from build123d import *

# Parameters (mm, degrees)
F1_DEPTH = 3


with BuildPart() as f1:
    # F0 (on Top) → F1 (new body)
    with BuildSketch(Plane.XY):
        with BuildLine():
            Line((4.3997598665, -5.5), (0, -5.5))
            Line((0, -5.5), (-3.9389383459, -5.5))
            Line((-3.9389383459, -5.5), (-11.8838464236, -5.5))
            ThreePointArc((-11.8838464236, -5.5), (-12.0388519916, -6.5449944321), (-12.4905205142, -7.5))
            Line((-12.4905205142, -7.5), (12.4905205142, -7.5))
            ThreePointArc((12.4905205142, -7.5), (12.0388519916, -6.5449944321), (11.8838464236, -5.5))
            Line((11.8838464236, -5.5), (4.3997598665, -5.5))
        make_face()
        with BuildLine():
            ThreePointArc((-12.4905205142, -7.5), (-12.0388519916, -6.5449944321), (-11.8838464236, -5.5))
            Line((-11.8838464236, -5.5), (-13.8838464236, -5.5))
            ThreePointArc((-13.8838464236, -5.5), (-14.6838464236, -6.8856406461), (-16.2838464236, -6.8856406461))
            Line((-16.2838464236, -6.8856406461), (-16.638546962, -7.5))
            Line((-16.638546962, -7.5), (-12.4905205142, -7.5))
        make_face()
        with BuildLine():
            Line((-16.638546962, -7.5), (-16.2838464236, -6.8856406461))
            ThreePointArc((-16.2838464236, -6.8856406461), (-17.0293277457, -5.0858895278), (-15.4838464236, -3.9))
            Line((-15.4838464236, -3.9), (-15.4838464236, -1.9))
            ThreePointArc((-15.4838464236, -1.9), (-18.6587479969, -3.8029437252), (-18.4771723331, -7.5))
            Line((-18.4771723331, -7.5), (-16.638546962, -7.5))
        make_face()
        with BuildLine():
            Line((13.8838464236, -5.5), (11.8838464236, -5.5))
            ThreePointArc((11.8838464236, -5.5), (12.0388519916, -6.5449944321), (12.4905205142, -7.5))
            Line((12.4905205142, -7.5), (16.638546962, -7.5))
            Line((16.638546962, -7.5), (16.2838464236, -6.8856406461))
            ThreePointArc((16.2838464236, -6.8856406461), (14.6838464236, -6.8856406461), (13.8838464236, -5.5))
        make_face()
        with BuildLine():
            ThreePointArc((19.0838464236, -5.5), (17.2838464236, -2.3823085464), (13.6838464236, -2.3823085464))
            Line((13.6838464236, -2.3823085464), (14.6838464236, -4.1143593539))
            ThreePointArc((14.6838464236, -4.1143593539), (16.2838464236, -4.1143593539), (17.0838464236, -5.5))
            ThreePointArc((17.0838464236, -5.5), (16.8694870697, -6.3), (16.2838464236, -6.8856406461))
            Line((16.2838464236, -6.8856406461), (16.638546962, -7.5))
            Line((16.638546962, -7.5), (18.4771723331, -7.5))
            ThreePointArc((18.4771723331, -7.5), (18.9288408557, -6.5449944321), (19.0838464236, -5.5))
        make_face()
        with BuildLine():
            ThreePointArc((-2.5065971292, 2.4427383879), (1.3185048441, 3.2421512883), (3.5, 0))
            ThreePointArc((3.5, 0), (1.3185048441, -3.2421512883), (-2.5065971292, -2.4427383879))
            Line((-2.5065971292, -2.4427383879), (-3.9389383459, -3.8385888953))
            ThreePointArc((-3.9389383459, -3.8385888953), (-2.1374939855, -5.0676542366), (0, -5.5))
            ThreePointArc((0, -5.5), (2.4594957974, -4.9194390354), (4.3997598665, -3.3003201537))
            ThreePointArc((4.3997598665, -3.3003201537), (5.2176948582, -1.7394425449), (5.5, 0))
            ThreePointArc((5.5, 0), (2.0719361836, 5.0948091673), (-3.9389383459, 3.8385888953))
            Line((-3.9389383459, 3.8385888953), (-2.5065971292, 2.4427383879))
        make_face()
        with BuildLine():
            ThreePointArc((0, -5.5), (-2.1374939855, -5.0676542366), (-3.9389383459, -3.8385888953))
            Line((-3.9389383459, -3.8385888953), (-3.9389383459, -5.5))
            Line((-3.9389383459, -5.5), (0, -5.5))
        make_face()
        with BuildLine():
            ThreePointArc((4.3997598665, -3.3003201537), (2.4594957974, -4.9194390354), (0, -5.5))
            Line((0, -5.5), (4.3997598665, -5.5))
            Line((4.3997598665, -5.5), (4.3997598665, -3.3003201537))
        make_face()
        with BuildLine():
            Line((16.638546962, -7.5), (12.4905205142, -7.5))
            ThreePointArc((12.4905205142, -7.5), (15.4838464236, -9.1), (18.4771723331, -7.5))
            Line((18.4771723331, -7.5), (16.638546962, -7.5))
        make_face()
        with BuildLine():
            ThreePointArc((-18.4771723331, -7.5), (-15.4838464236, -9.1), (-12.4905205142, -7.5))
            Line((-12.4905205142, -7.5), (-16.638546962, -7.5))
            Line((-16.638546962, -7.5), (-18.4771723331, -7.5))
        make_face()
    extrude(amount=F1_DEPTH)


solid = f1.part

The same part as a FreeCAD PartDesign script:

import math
import FreeCAD as App
import Part
import Sketcher

V = App.Vector
Q = App.Units.Quantity

doc = App.newDocument("Part")
body = doc.addObject("PartDesign::Body", "Body")

sketch1 = body.newObject("Sketcher::SketchObject", "Sketch")
sketch1.AttachmentSupport = (doc.getObject("XY_Plane"), [""])
sketch1.MapMode = "FlatFace"
sketch1.addGeometry(Part.ArcOfCircle(Part.Circle(V(-15.5, -5.5, 0), V(0, 0, 1), 1.6), math.radians(-120), math.radians(0)), False)
sketch1.addGeometry(Part.ArcOfCircle(Part.Circle(V(-15.5, -5.5, 0), V(0, 0, 1), 1.6), math.radians(90), math.radians(240)), False)
sketch1.addGeometry(Part.LineSegment(V(-15.5, -3.9, 0), V(-15.5, -1.9, 0)), False)
sketch1.addGeometry(Part.ArcOfCircle(Part.Circle(V(-15.5, -5.5, 0), V(0, 0, 1), 3.6), math.radians(90), math.radians(214)), False)
sketch1.addGeometry(Part.ArcOfCircle(Part.Circle(V(-15.5, -5.5, 0), V(0, 0, 1), 3.6), math.radians(-146), math.radians(-34)), False)
sketch1.addGeometry(Part.LineSegment(V(-12.5, -7.5, 0), V(12.5, -7.5, 0)), False)
sketch1.addGeometry(Part.ArcOfCircle(Part.Circle(V(15.5, -5.5, 0), V(0, 0, 1), 3.6), math.radians(-146), math.radians(-34)), False)
sketch1.addGeometry(Part.ArcOfCircle(Part.Circle(V(15.5, -5.5, 0), V(0, 0, 1), 3.6), math.radians(-34), math.radians(0)), False)
sketch1.addGeometry(Part.ArcOfCircle(Part.Circle(V(15.5, -5.5, 0), V(0, 0, 1), 3.6), math.radians(0), math.radians(120)), False)
sketch1.addGeometry(Part.LineSegment(V(13.7, -2.4, 0), V(14.7, -4.1, 0)), False)
sketch1.addGeometry(Part.ArcOfCircle(Part.Circle(V(15.5, -5.5, 0), V(0, 0, 1), 1.6), math.radians(0), math.radians(120)), False)
sketch1.addGeometry(Part.ArcOfCircle(Part.Circle(V(15.5, -5.5, 0), V(0, 0, 1), 1.6), math.radians(-60), math.radians(0)), False)
sketch1.addGeometry(Part.ArcOfCircle(Part.Circle(V(15.5, -5.5, 0), V(0, 0, 1), 1.6), math.radians(180), math.radians(300)), False)
sketch1.addGeometry(Part.LineSegment(V(13.9, -5.5, 0), V(4.4, -5.5, 0)), False)
sketch1.addGeometry(Part.LineSegment(V(4.4, -5.5, 0), V(4.4, -3.3, 0)), False)
sketch1.addGeometry(Part.ArcOfCircle(Part.Circle(V(0, 0, 0), V(0, 0, 1), 5.5), math.radians(-37), math.radians(0)), False)
sketch1.addGeometry(Part.ArcOfCircle(Part.Circle(V(0, 0, 0), V(0, 0, 1), 5.5), math.radians(0), math.radians(136)), False)
sketch1.addGeometry(Part.LineSegment(V(-3.9, 3.8, 0), V(-2.5, 2.4, 0)), False)
sketch1.addGeometry(Part.ArcOfCircle(Part.Circle(V(0, 0, 0), V(0, 0, 1), 3.5), math.radians(0), math.radians(136)), False)
sketch1.addGeometry(Part.ArcOfCircle(Part.Circle(V(0, 0, 0), V(0, 0, 1), 3.5), math.radians(-136), math.radians(0)), False)
sketch1.addGeometry(Part.LineSegment(V(-2.5, -2.4, 0), V(-3.9, -3.8, 0)), False)
sketch1.addGeometry(Part.LineSegment(V(-3.9, -3.8, 0), V(-3.9, -5.5, 0)), False)
sketch1.addGeometry(Part.LineSegment(V(-3.9, -5.5, 0), V(-13.9, -5.5, 0)), False)
sketch1.addConstraint(Sketcher.Constraint("Tangent", 0, 1, 1, 2))
sketch1.addConstraint(Sketcher.Constraint("Coincident", 1, 1, 2, 1))
sketch1.addConstraint(Sketcher.Constraint("Coincident", 2, 2, 3, 1))
sketch1.addConstraint(Sketcher.Constraint("Tangent", 3, 2, 4, 1))
sketch1.addConstraint(Sketcher.Constraint("Coincident", 4, 2, 5, 1))
sketch1.addConstraint(Sketcher.Constraint("Coincident", 5, 2, 6, 1))
sketch1.addConstraint(Sketcher.Constraint("Tangent", 6, 2, 7, 1))
sketch1.addConstraint(Sketcher.Constraint("Tangent", 7, 2, 8, 1))
sketch1.addConstraint(Sketcher.Constraint("Coincident", 8, 2, 9, 1))
sketch1.addConstraint(Sketcher.Constraint("Coincident", 9, 2, 10, 2))
sketch1.addConstraint(Sketcher.Constraint("Tangent", 10, 1, 11, 2))
sketch1.addConstraint(Sketcher.Constraint("Tangent", 11, 1, 12, 2))
sketch1.addConstraint(Sketcher.Constraint("Coincident", 12, 1, 13, 1))
sketch1.addConstraint(Sketcher.Constraint("Coincident", 13, 2, 14, 1))
sketch1.addConstraint(Sketcher.Constraint("Coincident", 14, 2, 15, 1))
sketch1.addConstraint(Sketcher.Constraint("Tangent", 15, 2, 16, 1))
sketch1.addConstraint(Sketcher.Constraint("Coincident", 16, 2, 17, 1))
sketch1.addConstraint(Sketcher.Constraint("Coincident", 17, 2, 18, 2))
sketch1.addConstraint(Sketcher.Constraint("Tangent", 18, 1, 19, 2))
sketch1.addConstraint(Sketcher.Constraint("Coincident", 19, 1, 20, 1))
sketch1.addConstraint(Sketcher.Constraint("Coincident", 20, 2, 21, 1))
sketch1.addConstraint(Sketcher.Constraint("Coincident", 21, 2, 22, 1))
sketch1.addConstraint(Sketcher.Constraint("Coincident", 22, 2, 0, 2))
sketch1.addConstraint(Sketcher.Constraint("Vertical", 2))
sketch1.addConstraint(Sketcher.Constraint("Horizontal", 5))
sketch1.addConstraint(Sketcher.Constraint("Horizontal", 13))
sketch1.addConstraint(Sketcher.Constraint("Vertical", 14))
sketch1.addConstraint(Sketcher.Constraint("Vertical", 21))
sketch1.addConstraint(Sketcher.Constraint("Horizontal", 22))
sketch1.addConstraint(Sketcher.Constraint("Coincident", 15, 3, -1, 1))
sketch1.addConstraint(Sketcher.Constraint("Coincident", 18, 3, -1, 1))
sketch1.addConstraint(Sketcher.Constraint("Coincident", 3, 3, 0, 3))
sketch1.addConstraint(Sketcher.Constraint("Coincident", 8, 3, 6, 3))
sketch1.addConstraint(Sketcher.Constraint("Coincident", 10, 3, 6, 3))
sketch1.addConstraint(Sketcher.Constraint("Coincident", 12, 3, 6, 3))
sketch1.addConstraint(Sketcher.Constraint("Equal", 0, 1))
sketch1.addConstraint(Sketcher.Constraint("Equal", 3, 4))
sketch1.addConstraint(Sketcher.Constraint("Equal", 4, 6))
sketch1.addConstraint(Sketcher.Constraint("Equal", 1, 10))
sketch1.addConstraint(Sketcher.Constraint("Equal", 15, 16))
sketch1.addConstraint(Sketcher.Constraint("Equal", 18, 19))
sketch1.addConstraint(Sketcher.Constraint("Symmetric", 0, 3, 6, 3, -2))
sketch1.addConstraint(Sketcher.Constraint("Symmetric", 16, 2, 20, 2, -1))
sketch1.addConstraint(Sketcher.Constraint("PointOnObject", 15, 2, -1))
sketch1.addConstraint(Sketcher.Constraint("PointOnObject", 18, 1, -1))
sketch1.addConstraint(Sketcher.Constraint("Horizontal", 3, 2, 4, 2))
sketch1.addConstraint(Sketcher.Constraint("Horizontal", 5, 2, 6, 2))
sketch1.addConstraint(Sketcher.Constraint("Horizontal", 12, 3, 7, 2))
sketch1.addConstraint(Sketcher.Constraint("Horizontal", 7, 2, 10, 1))
sketch1.addConstraint(Sketcher.Constraint("Horizontal", 0, 1, 11, 1))
sketch1.addConstraint(Sketcher.Constraint("Horizontal", 10, 1, 12, 1))
sketch1.addConstraint(Sketcher.Constraint("Horizontal", 13, 2, 21, 2))
sketch1.addConstraint(Sketcher.Constraint("Vertical", 4, 3, 1, 1))
sketch1.addConstraint(Sketcher.Constraint("Vertical", 17, 2, 19, 1))
sketch1.addConstraint(Sketcher.Constraint("Equal", 9, 17))
sketch1.addConstraint(Sketcher.Constraint("Radius", 0, Q("1.6 mm")))
sketch1.addConstraint(Sketcher.Constraint("Radius", 3, Q("3.6 mm")))
sketch1.addConstraint(Sketcher.Constraint("Radius", 15, Q("5.5 mm")))
sketch1.addConstraint(Sketcher.Constraint("Angle", 9, Q("-60 deg")))
sketch1.addConstraint(Sketcher.Constraint("DistanceY", 3, 2, 0, 3, Q("2 mm")))
sketch1.addConstraint(Sketcher.Constraint("DistanceY", 0, 3, -1, 1, Q("5.5 mm")))
sketch1.addConstraint(Sketcher.Constraint("DistanceX", 0, 1, 0, 3, Q("0.8 mm")))
sketch1.addConstraint(Sketcher.Constraint("DistanceX", 8, 2, 6, 3, Q("1.8 mm")))
sketch1.addConstraint(Sketcher.Constraint("DistanceX", 5, 1, 5, 2, Q("24.981041 mm")))
sketch1.addConstraint(Sketcher.Constraint("DistanceX", 22, 2, 22, 1, Q("9.944908 mm")))
sketch1.addConstraint(Sketcher.Constraint("DistanceY", 14, 1, 14, 2, Q("2.19968 mm")))
sketch1.addConstraint(Sketcher.Constraint("DistanceY", -1, 1, 17, 2, Q("2.442738 mm")))
pad1 = body.newObject("PartDesign::Pad", "Pad")
pad1.Profile = sketch1
pad1.Length = 3

doc.recompute()
